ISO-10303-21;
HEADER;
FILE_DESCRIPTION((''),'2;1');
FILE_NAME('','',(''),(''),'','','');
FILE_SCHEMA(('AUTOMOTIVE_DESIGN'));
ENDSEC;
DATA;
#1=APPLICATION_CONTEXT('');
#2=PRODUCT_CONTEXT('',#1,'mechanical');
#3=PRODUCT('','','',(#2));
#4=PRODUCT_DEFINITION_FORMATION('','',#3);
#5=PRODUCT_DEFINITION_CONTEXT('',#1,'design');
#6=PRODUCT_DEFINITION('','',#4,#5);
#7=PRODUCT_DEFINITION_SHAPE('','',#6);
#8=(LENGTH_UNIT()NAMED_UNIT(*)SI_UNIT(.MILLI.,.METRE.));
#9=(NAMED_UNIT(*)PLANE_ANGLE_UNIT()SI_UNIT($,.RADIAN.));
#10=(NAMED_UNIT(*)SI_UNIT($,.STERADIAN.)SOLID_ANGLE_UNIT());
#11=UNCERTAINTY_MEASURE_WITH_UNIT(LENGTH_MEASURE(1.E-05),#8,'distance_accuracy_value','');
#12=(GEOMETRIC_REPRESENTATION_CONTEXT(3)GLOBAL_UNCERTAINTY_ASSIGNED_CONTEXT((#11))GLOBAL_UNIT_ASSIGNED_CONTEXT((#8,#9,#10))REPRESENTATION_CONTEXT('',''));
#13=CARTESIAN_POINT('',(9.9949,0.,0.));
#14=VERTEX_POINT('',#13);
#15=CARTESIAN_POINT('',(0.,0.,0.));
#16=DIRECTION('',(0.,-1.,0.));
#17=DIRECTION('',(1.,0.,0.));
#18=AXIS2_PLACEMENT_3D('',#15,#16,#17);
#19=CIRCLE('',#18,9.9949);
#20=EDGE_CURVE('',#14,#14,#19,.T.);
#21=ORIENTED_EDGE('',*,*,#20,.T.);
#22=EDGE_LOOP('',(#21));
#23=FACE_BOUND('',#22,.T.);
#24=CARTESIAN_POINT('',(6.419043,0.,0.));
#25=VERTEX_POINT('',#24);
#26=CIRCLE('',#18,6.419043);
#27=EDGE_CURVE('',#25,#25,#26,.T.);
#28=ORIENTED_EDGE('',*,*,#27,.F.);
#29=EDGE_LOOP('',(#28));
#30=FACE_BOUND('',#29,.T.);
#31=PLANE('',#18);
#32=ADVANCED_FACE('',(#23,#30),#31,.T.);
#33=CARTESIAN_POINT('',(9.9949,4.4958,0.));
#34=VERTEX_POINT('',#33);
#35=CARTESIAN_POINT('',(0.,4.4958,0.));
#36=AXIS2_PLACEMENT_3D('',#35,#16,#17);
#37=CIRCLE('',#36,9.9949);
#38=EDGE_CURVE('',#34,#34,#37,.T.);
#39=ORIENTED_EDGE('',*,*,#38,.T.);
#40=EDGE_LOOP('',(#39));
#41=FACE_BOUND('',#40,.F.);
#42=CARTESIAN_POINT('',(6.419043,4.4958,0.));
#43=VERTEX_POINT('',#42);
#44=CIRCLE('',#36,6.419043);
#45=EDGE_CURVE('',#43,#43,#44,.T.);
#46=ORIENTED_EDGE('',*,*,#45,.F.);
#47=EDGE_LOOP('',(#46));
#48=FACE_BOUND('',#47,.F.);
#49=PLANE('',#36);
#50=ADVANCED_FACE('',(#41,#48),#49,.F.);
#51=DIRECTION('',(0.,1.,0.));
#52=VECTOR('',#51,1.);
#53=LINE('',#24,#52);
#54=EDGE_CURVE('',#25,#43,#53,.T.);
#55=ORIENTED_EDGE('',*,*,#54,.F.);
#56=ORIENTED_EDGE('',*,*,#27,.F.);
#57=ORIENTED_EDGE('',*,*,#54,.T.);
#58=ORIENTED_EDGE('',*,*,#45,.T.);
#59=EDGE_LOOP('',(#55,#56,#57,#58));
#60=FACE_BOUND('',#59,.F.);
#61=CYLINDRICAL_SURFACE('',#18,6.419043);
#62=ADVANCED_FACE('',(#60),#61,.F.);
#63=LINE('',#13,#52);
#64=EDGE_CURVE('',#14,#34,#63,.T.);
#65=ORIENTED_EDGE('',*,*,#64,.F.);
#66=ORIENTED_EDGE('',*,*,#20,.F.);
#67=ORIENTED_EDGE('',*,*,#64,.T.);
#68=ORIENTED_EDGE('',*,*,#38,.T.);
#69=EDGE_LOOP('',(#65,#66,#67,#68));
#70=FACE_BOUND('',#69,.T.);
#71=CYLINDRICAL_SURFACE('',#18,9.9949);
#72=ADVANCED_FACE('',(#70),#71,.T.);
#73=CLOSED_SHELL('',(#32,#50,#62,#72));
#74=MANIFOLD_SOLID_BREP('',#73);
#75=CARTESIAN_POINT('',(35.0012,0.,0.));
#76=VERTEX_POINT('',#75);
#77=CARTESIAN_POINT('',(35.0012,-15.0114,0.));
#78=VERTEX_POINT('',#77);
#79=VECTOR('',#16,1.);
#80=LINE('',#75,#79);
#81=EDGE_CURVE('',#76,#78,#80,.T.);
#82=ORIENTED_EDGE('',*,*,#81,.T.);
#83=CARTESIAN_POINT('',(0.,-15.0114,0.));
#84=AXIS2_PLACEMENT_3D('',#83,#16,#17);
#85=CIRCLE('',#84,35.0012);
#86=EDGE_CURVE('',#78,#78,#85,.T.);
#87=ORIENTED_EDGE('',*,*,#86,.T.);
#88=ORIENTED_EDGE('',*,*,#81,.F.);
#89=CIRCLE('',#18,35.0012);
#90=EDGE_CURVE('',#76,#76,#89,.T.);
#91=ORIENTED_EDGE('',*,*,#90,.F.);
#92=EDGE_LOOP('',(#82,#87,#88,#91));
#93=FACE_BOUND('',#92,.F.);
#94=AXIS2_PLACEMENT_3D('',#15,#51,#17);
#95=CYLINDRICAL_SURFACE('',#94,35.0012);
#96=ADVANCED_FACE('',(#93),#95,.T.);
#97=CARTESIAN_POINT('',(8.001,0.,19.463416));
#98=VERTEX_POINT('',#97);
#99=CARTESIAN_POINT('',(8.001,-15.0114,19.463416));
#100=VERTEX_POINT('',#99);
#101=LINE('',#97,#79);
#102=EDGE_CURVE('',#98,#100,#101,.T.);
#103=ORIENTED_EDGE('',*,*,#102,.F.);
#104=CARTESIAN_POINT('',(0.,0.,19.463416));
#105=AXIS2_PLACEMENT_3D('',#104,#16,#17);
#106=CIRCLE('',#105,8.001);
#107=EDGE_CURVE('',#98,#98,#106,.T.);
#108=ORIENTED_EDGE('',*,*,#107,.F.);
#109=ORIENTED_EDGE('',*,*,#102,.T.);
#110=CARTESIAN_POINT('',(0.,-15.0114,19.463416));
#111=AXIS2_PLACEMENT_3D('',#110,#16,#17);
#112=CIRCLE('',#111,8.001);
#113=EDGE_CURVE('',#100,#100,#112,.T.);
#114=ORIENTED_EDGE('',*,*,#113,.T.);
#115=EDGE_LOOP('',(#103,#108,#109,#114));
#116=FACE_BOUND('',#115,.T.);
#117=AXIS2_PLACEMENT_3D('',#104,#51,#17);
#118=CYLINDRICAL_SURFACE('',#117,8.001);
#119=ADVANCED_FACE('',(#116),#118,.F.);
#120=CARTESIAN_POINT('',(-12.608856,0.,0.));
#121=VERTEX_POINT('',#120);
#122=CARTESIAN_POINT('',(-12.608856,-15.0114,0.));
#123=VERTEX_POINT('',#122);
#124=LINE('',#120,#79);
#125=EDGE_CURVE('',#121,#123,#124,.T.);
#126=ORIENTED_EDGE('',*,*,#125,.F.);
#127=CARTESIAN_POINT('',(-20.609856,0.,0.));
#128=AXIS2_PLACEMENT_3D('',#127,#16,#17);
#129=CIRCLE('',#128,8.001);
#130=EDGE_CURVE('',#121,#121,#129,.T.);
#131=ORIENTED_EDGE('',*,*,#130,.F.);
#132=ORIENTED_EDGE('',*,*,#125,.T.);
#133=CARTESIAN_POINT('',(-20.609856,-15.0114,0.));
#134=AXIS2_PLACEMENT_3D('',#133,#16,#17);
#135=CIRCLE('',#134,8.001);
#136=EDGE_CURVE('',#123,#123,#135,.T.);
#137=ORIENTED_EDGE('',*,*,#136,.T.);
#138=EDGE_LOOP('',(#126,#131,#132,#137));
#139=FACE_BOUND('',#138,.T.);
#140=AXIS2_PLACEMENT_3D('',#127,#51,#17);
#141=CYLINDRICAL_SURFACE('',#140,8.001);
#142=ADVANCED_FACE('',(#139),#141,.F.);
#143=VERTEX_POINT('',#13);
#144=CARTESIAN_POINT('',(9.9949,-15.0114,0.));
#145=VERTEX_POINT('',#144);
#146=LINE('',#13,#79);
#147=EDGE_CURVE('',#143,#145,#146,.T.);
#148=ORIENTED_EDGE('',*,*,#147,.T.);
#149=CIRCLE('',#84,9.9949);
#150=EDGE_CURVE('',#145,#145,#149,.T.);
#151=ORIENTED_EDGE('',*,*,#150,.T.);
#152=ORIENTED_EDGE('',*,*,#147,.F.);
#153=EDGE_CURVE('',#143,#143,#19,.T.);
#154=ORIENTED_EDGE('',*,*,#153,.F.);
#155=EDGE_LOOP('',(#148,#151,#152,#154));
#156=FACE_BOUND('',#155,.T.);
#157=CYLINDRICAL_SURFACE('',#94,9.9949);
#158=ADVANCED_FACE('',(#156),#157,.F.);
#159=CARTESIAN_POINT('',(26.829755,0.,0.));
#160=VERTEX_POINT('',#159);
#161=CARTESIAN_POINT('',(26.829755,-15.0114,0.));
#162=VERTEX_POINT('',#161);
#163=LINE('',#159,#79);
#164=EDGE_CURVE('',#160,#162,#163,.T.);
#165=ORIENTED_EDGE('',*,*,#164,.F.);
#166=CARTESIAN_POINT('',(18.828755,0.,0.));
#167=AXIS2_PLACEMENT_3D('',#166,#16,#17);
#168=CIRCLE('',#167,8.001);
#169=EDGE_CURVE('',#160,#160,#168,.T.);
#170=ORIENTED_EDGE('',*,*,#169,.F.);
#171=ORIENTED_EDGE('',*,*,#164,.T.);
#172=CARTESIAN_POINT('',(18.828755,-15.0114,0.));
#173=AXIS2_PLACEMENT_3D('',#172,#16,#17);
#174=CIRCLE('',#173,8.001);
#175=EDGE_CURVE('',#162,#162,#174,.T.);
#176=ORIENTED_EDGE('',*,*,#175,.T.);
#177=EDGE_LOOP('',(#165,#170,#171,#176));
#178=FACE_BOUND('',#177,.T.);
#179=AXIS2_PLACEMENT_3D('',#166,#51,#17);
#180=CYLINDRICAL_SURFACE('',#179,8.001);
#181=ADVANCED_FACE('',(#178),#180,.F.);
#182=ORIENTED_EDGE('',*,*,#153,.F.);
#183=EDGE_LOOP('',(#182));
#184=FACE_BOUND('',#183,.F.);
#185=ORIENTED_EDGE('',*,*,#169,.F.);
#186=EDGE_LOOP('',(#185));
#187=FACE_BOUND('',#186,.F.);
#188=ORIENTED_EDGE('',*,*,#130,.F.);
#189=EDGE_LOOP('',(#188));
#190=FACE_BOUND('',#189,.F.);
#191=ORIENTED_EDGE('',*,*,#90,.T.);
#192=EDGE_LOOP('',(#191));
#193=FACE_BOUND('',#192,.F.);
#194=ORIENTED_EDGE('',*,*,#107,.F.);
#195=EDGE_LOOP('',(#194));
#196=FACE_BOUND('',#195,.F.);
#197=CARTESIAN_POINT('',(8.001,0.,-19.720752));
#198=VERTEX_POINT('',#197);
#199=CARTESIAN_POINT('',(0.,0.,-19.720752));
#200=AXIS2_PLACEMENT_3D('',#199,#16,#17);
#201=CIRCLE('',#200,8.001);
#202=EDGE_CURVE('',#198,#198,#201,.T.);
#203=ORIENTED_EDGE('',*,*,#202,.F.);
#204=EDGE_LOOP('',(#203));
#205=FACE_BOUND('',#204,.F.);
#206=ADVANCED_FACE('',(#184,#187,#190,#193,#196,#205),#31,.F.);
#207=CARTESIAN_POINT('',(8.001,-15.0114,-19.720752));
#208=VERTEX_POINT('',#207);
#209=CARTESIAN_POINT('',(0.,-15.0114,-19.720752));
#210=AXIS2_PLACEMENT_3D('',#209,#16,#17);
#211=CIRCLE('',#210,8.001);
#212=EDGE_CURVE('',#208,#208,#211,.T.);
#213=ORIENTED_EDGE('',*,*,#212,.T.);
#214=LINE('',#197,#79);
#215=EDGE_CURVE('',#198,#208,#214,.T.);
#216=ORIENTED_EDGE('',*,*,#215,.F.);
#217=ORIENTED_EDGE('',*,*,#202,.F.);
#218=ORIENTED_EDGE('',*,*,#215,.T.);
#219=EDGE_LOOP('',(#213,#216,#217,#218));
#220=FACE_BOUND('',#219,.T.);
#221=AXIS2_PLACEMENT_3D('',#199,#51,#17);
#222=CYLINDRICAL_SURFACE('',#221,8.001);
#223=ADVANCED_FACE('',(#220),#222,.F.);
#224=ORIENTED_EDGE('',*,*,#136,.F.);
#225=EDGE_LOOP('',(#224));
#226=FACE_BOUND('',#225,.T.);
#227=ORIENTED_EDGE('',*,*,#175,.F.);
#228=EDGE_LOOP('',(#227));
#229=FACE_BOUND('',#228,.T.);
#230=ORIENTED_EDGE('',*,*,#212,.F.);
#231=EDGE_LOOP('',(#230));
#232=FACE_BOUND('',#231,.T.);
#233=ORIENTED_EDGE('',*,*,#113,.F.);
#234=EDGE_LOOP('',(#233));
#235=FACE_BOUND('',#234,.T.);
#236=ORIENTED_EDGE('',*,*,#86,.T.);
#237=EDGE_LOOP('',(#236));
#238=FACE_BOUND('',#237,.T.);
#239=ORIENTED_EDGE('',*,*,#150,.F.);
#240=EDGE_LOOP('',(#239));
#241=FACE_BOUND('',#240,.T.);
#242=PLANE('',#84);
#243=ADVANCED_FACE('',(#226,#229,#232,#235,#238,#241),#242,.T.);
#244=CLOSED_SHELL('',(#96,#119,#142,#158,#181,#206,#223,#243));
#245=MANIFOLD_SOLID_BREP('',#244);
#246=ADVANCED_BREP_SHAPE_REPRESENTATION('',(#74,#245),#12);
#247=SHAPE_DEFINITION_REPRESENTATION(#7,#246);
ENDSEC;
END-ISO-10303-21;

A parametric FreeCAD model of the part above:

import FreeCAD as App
import Part
import Sketcher

V = App.Vector
Q = App.Units.Quantity

doc = App.newDocument("Part")
body = doc.addObject("PartDesign::Body", "Body")

sketch1 = body.newObject("Sketcher::SketchObject", "Sketch")
sketch1.AttachmentSupport = (doc.getObject("XZ_Plane"), [""])
sketch1.MapMode = "FlatFace"
sketch1.addGeometry([
    Part.Circle(V(0, 0, 0), V(0, 0, 1), 35),
    Part.Circle(V(0, -20, 0), V(0, 0, 1), 8),
    Part.Circle(V(-21, 0, 0), V(0, 0, 1), 8),
    Part.Circle(V(0, 0, 0), V(0, 0, 1), 10),
    Part.Circle(V(19, 0, 0), V(0, 0, 1), 8),
    Part.Circle(V(0, 19, 0), V(0, 0, 1), 8),
], False)
sketch1.addConstraint([
    Sketcher.Constraint("Coincident", 0, 3, -1, 1),
    Sketcher.Constraint("Coincident", 3, 3, -1, 1),
    Sketcher.Constraint("Equal", 1, 2),
    Sketcher.Constraint("Equal", 2, 4),
    Sketcher.Constraint("Equal", 4, 5),
    Sketcher.Constraint("PointOnObject", 1, 3, -2),
    Sketcher.Constraint("PointOnObject", 2, 3, -1),
    Sketcher.Constraint("PointOnObject", 4, 3, -1),
    Sketcher.Constraint("PointOnObject", 5, 3, -2),
    Sketcher.Constraint("Diameter", 1, Q("0.63 in")),
    Sketcher.Constraint("Diameter", 0, Q("2.756 in")),
    Sketcher.Constraint("Diameter", 3, Q("0.787 in")),
    Sketcher.Constraint("DistanceX", 2, 3, 4, 3, 39.438611),
    Sketcher.Constraint("DistanceY", 1, 3, -1, 1, 19.720752),
    Sketcher.Constraint("DistanceX", 2, 3, -1, 1, 20.609856),
    Sketcher.Constraint("DistanceY", -1, 1, 5, 3, 19.463416),
])
pad1 = body.newObject("PartDesign::Pad", "Pad")
pad1.Profile = sketch1
pad1.Length = Q("0.591 in")
body2 = doc.addObject("PartDesign::Body", "Body001")

sketch2 = body2.newObject("Sketcher::SketchObject", "Sketch001")
sketch2.AttachmentSupport = (doc.getObject("XZ_Plane001"), [""])
sketch2.MapMode = "FlatFace"
sketch2.addGeometry([
    Part.Circle(V(0, 0, 0), V(0, 0, 1), 10),
    Part.Circle(V(0, 0, 0), V(0, 0, 1), 6),
], False)
sketch2.addConstraint([
    Sketcher.Constraint("Coincident", 0, 3, -1, 1),
    Sketcher.Constraint("Coincident", 1, 3, -1, 1),
    Sketcher.Constraint("Diameter", 0, Q("0.787 in")),
    Sketcher.Constraint("Diameter", 1, 12.838086),
])
pad2 = body2.newObject("PartDesign::Pad", "Pad001")
pad2.Profile = sketch2
pad2.Length = Q("0.177 in")
pad2.Reversed = True

doc.recompute()
